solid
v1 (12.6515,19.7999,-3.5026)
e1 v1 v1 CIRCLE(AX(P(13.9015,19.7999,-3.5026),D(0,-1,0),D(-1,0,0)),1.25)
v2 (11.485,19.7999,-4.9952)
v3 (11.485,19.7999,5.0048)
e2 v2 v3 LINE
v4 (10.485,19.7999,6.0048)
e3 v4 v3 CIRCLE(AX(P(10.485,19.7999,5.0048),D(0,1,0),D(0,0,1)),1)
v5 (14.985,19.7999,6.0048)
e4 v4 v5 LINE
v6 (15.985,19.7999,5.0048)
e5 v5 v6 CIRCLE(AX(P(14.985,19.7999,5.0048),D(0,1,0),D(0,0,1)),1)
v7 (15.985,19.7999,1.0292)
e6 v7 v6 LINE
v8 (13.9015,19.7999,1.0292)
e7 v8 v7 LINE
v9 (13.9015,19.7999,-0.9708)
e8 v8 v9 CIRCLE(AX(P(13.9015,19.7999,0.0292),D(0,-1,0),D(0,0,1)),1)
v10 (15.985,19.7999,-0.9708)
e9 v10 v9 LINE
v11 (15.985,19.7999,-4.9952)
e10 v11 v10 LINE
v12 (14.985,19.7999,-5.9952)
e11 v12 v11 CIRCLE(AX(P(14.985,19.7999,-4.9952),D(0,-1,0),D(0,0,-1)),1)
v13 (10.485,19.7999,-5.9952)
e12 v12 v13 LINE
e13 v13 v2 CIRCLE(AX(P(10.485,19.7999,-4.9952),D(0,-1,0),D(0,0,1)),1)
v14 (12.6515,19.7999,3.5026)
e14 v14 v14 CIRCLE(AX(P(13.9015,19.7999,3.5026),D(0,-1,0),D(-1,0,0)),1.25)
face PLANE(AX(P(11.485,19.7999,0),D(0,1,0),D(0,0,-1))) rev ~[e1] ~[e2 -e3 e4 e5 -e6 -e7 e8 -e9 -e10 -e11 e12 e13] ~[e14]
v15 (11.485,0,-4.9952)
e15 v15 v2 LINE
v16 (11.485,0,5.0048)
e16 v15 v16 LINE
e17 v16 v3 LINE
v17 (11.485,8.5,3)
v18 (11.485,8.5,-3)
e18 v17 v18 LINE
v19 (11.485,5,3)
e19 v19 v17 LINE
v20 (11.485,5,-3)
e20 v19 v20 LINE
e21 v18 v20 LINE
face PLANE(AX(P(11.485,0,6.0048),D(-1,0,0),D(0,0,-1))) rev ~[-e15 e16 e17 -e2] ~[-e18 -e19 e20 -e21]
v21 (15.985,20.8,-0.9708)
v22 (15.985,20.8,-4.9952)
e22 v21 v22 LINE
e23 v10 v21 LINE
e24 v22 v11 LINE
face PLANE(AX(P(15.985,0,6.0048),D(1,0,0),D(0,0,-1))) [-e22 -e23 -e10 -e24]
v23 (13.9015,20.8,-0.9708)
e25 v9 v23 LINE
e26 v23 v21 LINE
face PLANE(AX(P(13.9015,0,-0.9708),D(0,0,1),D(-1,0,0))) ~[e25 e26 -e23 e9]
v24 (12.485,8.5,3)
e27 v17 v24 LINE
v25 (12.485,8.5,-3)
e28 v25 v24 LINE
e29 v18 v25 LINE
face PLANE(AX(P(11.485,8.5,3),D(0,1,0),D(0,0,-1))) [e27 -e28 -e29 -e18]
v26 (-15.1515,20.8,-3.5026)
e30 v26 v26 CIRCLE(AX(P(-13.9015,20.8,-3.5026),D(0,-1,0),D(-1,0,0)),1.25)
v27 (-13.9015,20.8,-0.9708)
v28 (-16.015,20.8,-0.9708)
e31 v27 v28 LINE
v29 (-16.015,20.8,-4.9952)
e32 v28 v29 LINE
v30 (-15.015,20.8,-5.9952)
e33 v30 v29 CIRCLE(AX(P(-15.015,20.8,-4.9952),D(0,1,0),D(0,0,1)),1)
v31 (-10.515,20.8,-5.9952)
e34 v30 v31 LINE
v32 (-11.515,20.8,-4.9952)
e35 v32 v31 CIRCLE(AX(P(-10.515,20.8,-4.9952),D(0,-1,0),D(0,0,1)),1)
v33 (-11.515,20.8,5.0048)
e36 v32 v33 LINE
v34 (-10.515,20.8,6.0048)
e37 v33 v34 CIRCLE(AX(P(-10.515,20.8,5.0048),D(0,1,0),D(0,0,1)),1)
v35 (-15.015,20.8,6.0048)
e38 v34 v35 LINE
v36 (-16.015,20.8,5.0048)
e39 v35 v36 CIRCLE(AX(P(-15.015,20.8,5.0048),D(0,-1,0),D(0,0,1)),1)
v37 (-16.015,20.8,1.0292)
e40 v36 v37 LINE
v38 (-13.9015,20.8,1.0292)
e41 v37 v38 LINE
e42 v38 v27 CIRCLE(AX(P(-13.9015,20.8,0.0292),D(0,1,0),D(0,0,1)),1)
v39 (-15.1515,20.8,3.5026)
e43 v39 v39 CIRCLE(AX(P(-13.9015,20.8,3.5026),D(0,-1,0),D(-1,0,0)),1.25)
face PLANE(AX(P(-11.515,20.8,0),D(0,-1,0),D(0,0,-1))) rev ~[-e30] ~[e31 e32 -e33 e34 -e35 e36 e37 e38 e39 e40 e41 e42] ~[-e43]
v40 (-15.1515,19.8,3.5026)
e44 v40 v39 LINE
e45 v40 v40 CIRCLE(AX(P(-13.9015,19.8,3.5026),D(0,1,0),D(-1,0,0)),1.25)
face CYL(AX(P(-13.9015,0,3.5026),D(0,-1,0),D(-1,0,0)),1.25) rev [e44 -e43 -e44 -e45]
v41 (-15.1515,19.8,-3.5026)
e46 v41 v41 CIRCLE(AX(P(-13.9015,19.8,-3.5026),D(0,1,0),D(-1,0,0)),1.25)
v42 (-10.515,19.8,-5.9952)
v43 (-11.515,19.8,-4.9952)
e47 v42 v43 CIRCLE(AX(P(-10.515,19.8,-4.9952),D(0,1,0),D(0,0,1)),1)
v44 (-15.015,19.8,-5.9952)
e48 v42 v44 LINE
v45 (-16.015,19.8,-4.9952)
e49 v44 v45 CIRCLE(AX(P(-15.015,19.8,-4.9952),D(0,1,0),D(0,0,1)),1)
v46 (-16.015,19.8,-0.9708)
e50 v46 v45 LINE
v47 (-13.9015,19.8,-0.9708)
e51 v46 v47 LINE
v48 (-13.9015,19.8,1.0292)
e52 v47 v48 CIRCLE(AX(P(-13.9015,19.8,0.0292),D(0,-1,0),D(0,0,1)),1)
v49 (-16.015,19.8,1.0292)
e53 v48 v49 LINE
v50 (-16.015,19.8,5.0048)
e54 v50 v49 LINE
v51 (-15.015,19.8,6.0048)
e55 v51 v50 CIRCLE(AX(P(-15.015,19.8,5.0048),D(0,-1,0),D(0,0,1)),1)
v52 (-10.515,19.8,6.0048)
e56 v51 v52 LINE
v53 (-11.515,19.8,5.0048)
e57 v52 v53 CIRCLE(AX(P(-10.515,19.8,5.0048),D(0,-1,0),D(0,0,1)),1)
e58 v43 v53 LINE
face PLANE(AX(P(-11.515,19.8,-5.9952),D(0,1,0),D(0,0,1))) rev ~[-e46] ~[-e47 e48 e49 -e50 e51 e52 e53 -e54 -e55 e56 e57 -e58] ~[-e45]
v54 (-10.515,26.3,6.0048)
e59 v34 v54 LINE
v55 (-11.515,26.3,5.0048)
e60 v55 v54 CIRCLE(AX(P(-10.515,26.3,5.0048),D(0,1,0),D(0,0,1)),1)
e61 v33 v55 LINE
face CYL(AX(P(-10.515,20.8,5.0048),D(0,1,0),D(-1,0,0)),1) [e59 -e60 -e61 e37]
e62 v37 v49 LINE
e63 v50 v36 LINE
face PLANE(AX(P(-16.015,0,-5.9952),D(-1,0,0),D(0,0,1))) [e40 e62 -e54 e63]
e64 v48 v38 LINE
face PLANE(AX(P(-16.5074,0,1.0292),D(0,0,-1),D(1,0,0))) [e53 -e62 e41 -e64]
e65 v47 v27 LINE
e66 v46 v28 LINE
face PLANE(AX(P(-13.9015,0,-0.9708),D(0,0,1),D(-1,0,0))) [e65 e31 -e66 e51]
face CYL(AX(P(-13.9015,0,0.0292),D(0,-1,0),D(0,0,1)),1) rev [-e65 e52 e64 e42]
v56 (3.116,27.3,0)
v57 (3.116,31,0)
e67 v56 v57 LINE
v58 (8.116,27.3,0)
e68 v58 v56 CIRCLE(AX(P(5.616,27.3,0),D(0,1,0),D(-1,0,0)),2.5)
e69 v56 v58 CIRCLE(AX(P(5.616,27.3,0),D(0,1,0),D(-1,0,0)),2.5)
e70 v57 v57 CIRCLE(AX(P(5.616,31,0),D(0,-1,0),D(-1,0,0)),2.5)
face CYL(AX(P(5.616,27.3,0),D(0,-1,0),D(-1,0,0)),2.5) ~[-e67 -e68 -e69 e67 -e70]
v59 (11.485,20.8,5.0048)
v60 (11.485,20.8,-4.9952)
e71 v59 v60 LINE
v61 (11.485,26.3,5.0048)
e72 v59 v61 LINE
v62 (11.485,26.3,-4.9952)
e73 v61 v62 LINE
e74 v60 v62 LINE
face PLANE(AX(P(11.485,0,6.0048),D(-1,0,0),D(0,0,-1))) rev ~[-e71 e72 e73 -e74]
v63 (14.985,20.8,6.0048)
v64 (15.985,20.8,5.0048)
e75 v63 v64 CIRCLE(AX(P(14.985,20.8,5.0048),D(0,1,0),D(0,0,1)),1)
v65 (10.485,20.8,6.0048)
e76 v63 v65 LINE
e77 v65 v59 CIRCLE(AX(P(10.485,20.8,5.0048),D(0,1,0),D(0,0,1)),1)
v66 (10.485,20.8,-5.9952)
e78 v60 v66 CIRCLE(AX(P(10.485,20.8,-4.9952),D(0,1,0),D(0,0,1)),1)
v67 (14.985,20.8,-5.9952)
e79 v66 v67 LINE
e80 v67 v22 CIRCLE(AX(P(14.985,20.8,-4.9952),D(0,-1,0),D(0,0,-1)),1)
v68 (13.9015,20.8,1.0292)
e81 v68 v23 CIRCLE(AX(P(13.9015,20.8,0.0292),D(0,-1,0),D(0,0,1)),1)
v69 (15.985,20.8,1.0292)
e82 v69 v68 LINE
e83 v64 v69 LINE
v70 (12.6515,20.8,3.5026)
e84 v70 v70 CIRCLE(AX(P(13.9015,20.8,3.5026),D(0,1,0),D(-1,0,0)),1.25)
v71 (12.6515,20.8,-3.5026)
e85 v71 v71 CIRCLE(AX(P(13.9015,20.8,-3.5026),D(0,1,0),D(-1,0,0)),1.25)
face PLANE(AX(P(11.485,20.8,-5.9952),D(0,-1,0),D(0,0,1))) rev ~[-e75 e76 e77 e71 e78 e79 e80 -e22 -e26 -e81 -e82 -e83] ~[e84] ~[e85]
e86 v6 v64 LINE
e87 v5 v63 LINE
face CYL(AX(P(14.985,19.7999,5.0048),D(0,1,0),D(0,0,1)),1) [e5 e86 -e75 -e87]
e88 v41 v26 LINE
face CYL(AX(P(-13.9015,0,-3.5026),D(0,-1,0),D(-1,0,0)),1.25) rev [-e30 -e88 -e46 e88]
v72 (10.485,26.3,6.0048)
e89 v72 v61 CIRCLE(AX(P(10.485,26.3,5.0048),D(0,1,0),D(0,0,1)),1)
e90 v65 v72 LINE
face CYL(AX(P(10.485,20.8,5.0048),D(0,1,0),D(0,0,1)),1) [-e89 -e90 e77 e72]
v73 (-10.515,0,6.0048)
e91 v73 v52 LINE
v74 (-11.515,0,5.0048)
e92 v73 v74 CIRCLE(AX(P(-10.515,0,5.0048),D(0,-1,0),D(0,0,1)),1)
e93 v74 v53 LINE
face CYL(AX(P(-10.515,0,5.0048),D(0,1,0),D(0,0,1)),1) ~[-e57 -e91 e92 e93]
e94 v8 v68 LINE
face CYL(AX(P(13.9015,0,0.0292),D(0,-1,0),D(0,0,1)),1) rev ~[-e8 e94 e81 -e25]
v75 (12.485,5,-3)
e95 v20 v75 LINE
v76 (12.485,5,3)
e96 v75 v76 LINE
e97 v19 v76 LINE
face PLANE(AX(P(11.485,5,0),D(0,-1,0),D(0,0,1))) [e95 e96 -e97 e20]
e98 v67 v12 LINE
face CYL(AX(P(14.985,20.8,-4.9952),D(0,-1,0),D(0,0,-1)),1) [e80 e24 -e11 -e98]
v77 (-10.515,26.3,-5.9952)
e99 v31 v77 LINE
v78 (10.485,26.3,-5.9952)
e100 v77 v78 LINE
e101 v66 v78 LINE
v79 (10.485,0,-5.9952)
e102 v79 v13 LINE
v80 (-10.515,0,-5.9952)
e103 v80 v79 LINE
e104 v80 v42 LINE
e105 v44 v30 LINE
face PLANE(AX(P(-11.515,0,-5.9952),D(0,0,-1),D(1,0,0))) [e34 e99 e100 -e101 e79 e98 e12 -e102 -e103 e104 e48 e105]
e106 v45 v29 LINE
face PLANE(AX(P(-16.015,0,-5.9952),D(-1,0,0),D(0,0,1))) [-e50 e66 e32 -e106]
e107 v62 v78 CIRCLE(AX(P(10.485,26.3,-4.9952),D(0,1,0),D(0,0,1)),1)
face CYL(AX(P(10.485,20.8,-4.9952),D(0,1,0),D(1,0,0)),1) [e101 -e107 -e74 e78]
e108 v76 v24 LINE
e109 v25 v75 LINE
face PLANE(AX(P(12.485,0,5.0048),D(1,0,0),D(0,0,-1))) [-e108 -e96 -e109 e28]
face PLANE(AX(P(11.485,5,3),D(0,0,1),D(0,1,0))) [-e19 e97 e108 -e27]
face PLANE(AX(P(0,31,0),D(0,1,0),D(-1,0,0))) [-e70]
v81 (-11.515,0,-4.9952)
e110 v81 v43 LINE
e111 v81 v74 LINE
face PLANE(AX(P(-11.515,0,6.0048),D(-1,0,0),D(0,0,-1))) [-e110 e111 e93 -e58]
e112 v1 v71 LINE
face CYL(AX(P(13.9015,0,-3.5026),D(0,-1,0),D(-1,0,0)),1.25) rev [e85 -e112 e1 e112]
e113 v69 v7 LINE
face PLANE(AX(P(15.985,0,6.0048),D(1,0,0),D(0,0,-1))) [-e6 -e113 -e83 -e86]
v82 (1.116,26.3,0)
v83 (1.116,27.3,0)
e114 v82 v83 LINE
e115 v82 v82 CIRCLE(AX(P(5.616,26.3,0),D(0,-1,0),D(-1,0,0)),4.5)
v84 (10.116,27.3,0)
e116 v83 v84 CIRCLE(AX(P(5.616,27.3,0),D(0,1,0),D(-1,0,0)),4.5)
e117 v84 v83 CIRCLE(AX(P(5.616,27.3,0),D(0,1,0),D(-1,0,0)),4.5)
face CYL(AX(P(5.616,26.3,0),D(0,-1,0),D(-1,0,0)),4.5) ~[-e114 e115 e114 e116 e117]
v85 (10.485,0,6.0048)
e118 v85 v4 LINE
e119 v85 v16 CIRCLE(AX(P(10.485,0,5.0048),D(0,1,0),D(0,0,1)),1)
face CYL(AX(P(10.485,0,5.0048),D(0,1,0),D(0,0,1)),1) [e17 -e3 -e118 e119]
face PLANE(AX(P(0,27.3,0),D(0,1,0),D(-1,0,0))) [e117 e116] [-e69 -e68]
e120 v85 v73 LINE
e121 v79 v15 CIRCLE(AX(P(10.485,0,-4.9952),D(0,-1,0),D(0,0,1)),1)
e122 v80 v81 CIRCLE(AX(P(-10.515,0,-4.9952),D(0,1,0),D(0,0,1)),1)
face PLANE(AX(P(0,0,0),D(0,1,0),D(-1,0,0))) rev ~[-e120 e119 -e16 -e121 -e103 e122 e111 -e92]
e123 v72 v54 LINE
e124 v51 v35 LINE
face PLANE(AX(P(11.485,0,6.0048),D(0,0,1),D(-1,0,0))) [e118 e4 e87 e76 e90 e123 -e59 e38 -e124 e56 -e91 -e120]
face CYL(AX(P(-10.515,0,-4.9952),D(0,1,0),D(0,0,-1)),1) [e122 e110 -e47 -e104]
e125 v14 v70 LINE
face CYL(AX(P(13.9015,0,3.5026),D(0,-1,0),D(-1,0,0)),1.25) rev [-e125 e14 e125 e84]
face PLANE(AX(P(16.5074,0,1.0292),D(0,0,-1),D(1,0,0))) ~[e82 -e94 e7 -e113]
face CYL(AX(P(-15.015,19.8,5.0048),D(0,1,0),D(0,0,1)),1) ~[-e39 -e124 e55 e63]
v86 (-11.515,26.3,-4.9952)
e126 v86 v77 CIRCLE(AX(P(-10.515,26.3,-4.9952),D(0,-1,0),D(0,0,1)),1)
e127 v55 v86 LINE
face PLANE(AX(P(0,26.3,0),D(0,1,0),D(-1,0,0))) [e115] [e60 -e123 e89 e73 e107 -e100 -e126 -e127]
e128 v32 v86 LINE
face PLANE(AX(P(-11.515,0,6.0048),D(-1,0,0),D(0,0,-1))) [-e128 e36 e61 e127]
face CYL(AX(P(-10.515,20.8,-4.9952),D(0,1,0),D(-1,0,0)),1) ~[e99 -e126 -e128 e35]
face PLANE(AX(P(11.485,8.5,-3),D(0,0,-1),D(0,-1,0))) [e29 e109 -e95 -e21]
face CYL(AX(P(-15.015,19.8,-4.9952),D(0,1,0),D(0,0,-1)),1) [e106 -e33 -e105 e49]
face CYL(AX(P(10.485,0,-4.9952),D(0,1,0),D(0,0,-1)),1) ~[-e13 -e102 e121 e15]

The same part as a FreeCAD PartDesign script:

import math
import FreeCAD as App
import Part
import Sketcher
Q = App.Units.Quantity


def edges_at(feature, points):
    """Names of the edges that pass closest to the given points."""
    edges = feature.Shape.Edges
    near = lambda p: min(range(len(edges)), key=lambda i: edges[i].distToShape(Part.Vertex(*p))[0])
    return sorted({f"Edge{near(p) + 1}" for p in points})


def add_polygon(sketch, points):
    """Adds a closed chain of lines whose ends are joined by coincident constraints."""
    first, n = sketch.GeometryCount, len(points)
    for a, b in zip(points, points[1:] + points[:1]):
        sketch.addGeometry(Part.LineSegment(App.Vector(*a, 0), App.Vector(*b, 0)), False)
    for i in range(n):
        sketch.addConstraint(Sketcher.Constraint("Coincident", first + i, 2, first + (i + 1) % n, 1))

doc = App.newDocument("Part")
body = doc.addObject("PartDesign::Body", "Body")

# Sketch on XZ plane
sketch1 = body.newObject("Sketcher::SketchObject", "Sketch")
sketch1.AttachmentSupport = (doc.getObject("XZ_Plane"), [""])
sketch1.MapMode = "FlatFace"
add_polygon(sketch1, [(-11.515, 6.0048), (11.485, 6.0048), (11.485, -5.9952), (-11.515, -5.9952)])  # lines 0-3
sketch1.addConstraint([
    Sketcher.Constraint("Horizontal", 0),
    Sketcher.Constraint("Vertical", 1),
    Sketcher.Constraint("Horizontal", 2),
    Sketcher.Constraint("Vertical", 3),
    Sketcher.Constraint("DistanceX", 0, 1, 0, 2, Q("23 mm")),
    Sketcher.Constraint("DistanceY", 1, 2, 1, 1, Q("12 mm")),
    Sketcher.Constraint("DistanceX", -1, 1, 0, 2, Q("11.485 mm")),
    Sketcher.Constraint("DistanceY", -1, 1, 0, 2, Q("6.0048 mm")),
])
pad1 = body.newObject("PartDesign::Pad", "Pad")
pad1.Profile = sketch1
pad1.Length = 26.3
pad1.Reversed = True

# Sketch on XZ plane
sketch2 = body.newObject("Sketcher::SketchObject", "Sketch001")
sketch2.AttachmentSupport = (doc.getObject("XZ_Plane"), [""])
sketch2.MapMode = "FlatFace"
sketch2.AttachmentOffset = App.Placement(App.Vector(0, 0, -26.3), App.Rotation())
sketch2.addGeometry(Part.Circle(App.Vector(5.616, 0, 0), App.Vector(0, 0, 1), 4.5), False)
sketch2.addConstraint([
    Sketcher.Constraint("PointOnObject", 0, 3, -1),
    Sketcher.Constraint("Diameter", 0, Q("9 mm")),
    Sketcher.Constraint("DistanceX", -1, 1, 0, 3, Q("5.616 mm")),
])
pad2 = body.newObject("PartDesign::Pad", "Pad001")
pad2.Profile = sketch2
pad2.Length = 1
pad2.Reversed = True

# Sketch on YZ plane
sketch3 = body.newObject("Sketcher::SketchObject", "Sketch002")
sketch3.AttachmentSupport = (doc.getObject("YZ_Plane"), [""])
sketch3.MapMode = "FlatFace"
sketch3.AttachmentOffset = App.Placement(App.Vector(0, 0, -11.515), App.Rotation())
add_polygon(sketch3, [(19.8, -5.9952), (19.8, 6.0048), (20.8, 6.0048), (20.8, -5.9952)])  # lines 0-3
sketch3.addConstraint([
    Sketcher.Constraint("Vertical", 0),
    Sketcher.Constraint("Horizontal", 1),
    Sketcher.Constraint("Vertical", 2),
    Sketcher.Constraint("Horizontal", 3),
    Sketcher.Constraint("DistanceX", 1, 1, 1, 2, Q("1 mm")),
    Sketcher.Constraint("DistanceX", -1, 1, 0, 2, Q("19.8 mm")),
    Sketcher.Constraint("DistanceY", 0, 1, 0, 2, Q("12 mm")),
    Sketcher.Constraint("DistanceY", -1, 1, 0, 2, Q("6.0048 mm")),
])
pad3 = body.newObject("PartDesign::Pad", "Pad002")
pad3.Profile = sketch3
pad3.Length = 4.5
pad3.Reversed = True

# Sketch on YZ plane
sketch4 = body.newObject("Sketcher::SketchObject", "Sketch003")
sketch4.AttachmentSupport = (doc.getObject("YZ_Plane"), [""])
sketch4.MapMode = "FlatFace"
sketch4.AttachmentOffset = App.Placement(App.Vector(0, 0, 11.485), App.Rotation())
add_polygon(sketch4, [(19.7999, 6.0048), (19.7999, -5.9952), (20.8, -5.9952), (20.8, 6.0048)])  # lines 0-3
sketch4.addConstraint([
    Sketcher.Constraint("Vertical", 0),
    Sketcher.Constraint("Horizontal", 1),
    Sketcher.Constraint("Vertical", 2),
    Sketcher.Constraint("Horizontal", 3),
    Sketcher.Constraint("DistanceX", 1, 1, 1, 2, Q("1 mm")),
    Sketcher.Constraint("DistanceX", -1, 1, 0, 2, Q("19.8 mm")),
    Sketcher.Constraint("DistanceY", 0, 2, 0, 1, Q("12 mm")),
    Sketcher.Constraint("DistanceY", 0, 2, -1, 1, Q("5.9952 mm")),
])
pad4 = body.newObject("PartDesign::Pad", "Pad003")
pad4.Profile = sketch4
pad4.Length = 4.5

# Sketch on XZ plane
sketch5 = body.newObject("Sketcher::SketchObject", "Sketch004")
sketch5.AttachmentSupport = (doc.getObject("XZ_Plane"), [""])
sketch5.MapMode = "FlatFace"
sketch5.AttachmentOffset = App.Placement(App.Vector(0, 0, -27.3), App.Rotation())
sketch5.addGeometry(Part.Circle(App.Vector(5.616, 0, 0), App.Vector(0, 0, 1), 2.5), False)
sketch5.addConstraint([
    Sketcher.Constraint("PointOnObject", 0, 3, -1),
    Sketcher.Constraint("Diameter", 0, Q("5 mm")),
    Sketcher.Constraint("DistanceX", -1, 1, 0, 3, Q("5.616 mm")),
])
pad5 = body.newObject("PartDesign::Pad", "Pad004")
pad5.Profile = sketch5
pad5.Length = 3.7
pad5.Reversed = True
doc.recompute()

fillet = body.newObject("PartDesign::Fillet", "Fillet")
fillet.Base = (pad5, edges_at(pad5, [
    (11.485, 9.9, 6.005),
    (11.485, 9.9, -5.995),
    (-11.515, 9.9, -5.995),
    (-11.515, 23.55, -5.995),
    (-11.515, 23.55, 6.005),
    (-11.515, 9.9, 6.005),
    (-16.015, 20.3, 6.005),
    (-16.015, 20.3, -5.995),
    (11.485, 23.55, -5.995),
    (15.985, 20.3, -5.995),
    (15.985, 20.3, 6.005),
    (11.485, 23.55, 6.005),
]))
fillet.Radius = 1

# Sketch on XZ plane
sketch6 = body.newObject("Sketcher::SketchObject", "Sketch005")
sketch6.AttachmentSupport = (doc.getObject("XZ_Plane"), [""])
sketch6.MapMode = "FlatFace"
sketch6.addGeometry(Part.Circle(App.Vector(13.9015, 3.5026, 0), App.Vector(0, 0, 1), 1.25), False)
sketch6.addConstraint([
    Sketcher.Constraint("Diameter", 0, Q("2.5 mm")),
    Sketcher.Constraint("DistanceX", -1, 1, 0, 3, Q("13.9015 mm")),
    Sketcher.Constraint("DistanceY", -1, 1, 0, 3, Q("3.5026 mm")),
])
pocket1 = body.newObject("PartDesign::Pocket", "Pocket")
pocket1.Profile = sketch6
pocket1.Length = 20.8

# Sketch on XZ plane
sketch7 = body.newObject("Sketcher::SketchObject", "Sketch006")
sketch7.AttachmentSupport = (doc.getObject("XZ_Plane"), [""])
sketch7.MapMode = "FlatFace"
sketch7.addGeometry(Part.Circle(App.Vector(13.9015, -3.5026, 0), App.Vector(0, 0, 1), 1.25), False)
sketch7.addConstraint([
    Sketcher.Constraint("Diameter", 0, Q("2.5 mm")),
    Sketcher.Constraint("DistanceX", -1, 1, 0, 3, Q("13.9015 mm")),
    Sketcher.Constraint("DistanceY", 0, 3, -1, 1, Q("3.5026 mm")),
])
pocket2 = body.newObject("PartDesign::Pocket", "Pocket001")
pocket2.Profile = sketch7
pocket2.Length = 20.8

# Sketch on XZ plane
sketch8 = body.newObject("Sketcher::SketchObject", "Sketch007")
sketch8.AttachmentSupport = (doc.getObject("XZ_Plane"), [""])
sketch8.MapMode = "FlatFace"
sketch8.addGeometry(Part.Circle(App.Vector(-13.9015, 3.5026, 0), App.Vector(0, 0, 1), 1.25), False)
sketch8.addConstraint([
    Sketcher.Constraint("Diameter", 0, Q("2.5 mm")),
    Sketcher.Constraint("DistanceX", 0, 3, -1, 1, Q("13.9015 mm")),
    Sketcher.Constraint("DistanceY", -1, 1, 0, 3, Q("3.5026 mm")),
])
pocket3 = body.newObject("PartDesign::Pocket", "Pocket002")
pocket3.Profile = sketch8
pocket3.Length = 20.8

# Sketch on XZ plane
sketch9 = body.newObject("Sketcher::SketchObject", "Sketch008")
sketch9.AttachmentSupport = (doc.getObject("XZ_Plane"), [""])
sketch9.MapMode = "FlatFace"
sketch9.addGeometry(Part.Circle(App.Vector(-13.9015, -3.5026, 0), App.Vector(0, 0, 1), 1.25), False)
sketch9.addConstraint([
    Sketcher.Constraint("Diameter", 0, Q("2.5 mm")),
    Sketcher.Constraint("DistanceX", 0, 3, -1, 1, Q("13.9015 mm")),
    Sketcher.Constraint("DistanceY", 0, 3, -1, 1, Q("3.5026 mm")),
])
pocket4 = body.newObject("PartDesign::Pocket", "Pocket003")
pocket4.Profile = sketch9
pocket4.Length = 20.8

# Sketch on YZ plane
sketch10 = body.newObject("Sketcher::SketchObject", "Sketch009")
sketch10.AttachmentSupport = (doc.getObject("YZ_Plane"), [""])
sketch10.MapMode = "FlatFace"
sketch10.AttachmentOffset = App.Placement(App.Vector(0, 0, 11.485), App.Rotation())
add_polygon(sketch10, [(5, 3), (5, -3), (8.5, -3), (8.5, 3)])  # lines 0-3
sketch10.addConstraint([
    Sketcher.Constraint("Vertical", 0),
    Sketcher.Constraint("Horizontal", 1),
    Sketcher.Constraint("Vertical", 2),
    Sketcher.Constraint("Horizontal", 3),
    Sketcher.Constraint("DistanceX", 1, 1, 1, 2, Q("3.5 mm")),
    Sketcher.Constraint("DistanceX", -1, 1, 0, 2, Q("5 mm")),
    Sketcher.Constraint("DistanceY", 0, 2, -1, 1, Q("3 mm")),
    Sketcher.Constraint("DistanceY", -1, 1, 2, 2, Q("3 mm")),
])
pad6 = body.newObject("PartDesign::Pad", "Pad005")
pad6.Profile = sketch10
pad6.Length = 1

# Sketch on XZ plane
sketch11 = body.newObject("Sketcher::SketchObject", "Sketch010")
sketch11.AttachmentSupport = (doc.getObject("XZ_Plane"), [""])
sketch11.MapMode = "FlatFace"
sketch11.addGeometry([
    Part.LineSegment(App.Vector(-16.5074, 1.0292, 0), App.Vector(-13.9015, 1.0292, 0)),
    Part.ArcOfCircle(Part.Circle(App.Vector(-13.9015, 0.0292, 0), App.Vector(0, 0, 1), 1), math.radians(-90), math.radians(90)),
    Part.LineSegment(App.Vector(-13.9015, -0.9708, 0), App.Vector(-16.5074, -0.9708, 0)),
    Part.LineSegment(App.Vector(-16.5074, -0.9708, 0), App.Vector(-16.5074, 1.0292, 0)),
], False)
sketch11.addConstraint([
    Sketcher.Constraint("Tangent", 0, 2, 1, 2),
    Sketcher.Constraint("Tangent", 1, 1, 2, 1),
    Sketcher.Constraint("Coincident", 2, 2, 3, 1),
    Sketcher.Constraint("Coincident", 3, 2, 0, 1),
    Sketcher.Constraint("Horizontal", 0),
    Sketcher.Constraint("Horizontal", 2),
    Sketcher.Constraint("Vertical", 3),
    Sketcher.Constraint("Radius", 1, Q("1 mm")),
    Sketcher.Constraint("DistanceX", 0, 1, 0, 2, Q("2.606 mm")),
    Sketcher.Constraint("DistanceX", 1, 3, -1, 1, Q("13.9015 mm")),
    Sketcher.Constraint("DistanceY", -1, 1, 1, 3, Q("0.0292 mm")),
])
pocket5 = body.newObject("PartDesign::Pocket", "Pocket004")
pocket5.Profile = sketch11
pocket5.Length = 20.8
doc.recompute()

mirrored = body.newObject("PartDesign::Mirrored", "Mirrored")
mirrored.Originals = [pocket5]
mirrored.MirrorPlane = (doc.getObject("YZ_Plane"), [""])
body.Tip = mirrored

doc.recompute()
